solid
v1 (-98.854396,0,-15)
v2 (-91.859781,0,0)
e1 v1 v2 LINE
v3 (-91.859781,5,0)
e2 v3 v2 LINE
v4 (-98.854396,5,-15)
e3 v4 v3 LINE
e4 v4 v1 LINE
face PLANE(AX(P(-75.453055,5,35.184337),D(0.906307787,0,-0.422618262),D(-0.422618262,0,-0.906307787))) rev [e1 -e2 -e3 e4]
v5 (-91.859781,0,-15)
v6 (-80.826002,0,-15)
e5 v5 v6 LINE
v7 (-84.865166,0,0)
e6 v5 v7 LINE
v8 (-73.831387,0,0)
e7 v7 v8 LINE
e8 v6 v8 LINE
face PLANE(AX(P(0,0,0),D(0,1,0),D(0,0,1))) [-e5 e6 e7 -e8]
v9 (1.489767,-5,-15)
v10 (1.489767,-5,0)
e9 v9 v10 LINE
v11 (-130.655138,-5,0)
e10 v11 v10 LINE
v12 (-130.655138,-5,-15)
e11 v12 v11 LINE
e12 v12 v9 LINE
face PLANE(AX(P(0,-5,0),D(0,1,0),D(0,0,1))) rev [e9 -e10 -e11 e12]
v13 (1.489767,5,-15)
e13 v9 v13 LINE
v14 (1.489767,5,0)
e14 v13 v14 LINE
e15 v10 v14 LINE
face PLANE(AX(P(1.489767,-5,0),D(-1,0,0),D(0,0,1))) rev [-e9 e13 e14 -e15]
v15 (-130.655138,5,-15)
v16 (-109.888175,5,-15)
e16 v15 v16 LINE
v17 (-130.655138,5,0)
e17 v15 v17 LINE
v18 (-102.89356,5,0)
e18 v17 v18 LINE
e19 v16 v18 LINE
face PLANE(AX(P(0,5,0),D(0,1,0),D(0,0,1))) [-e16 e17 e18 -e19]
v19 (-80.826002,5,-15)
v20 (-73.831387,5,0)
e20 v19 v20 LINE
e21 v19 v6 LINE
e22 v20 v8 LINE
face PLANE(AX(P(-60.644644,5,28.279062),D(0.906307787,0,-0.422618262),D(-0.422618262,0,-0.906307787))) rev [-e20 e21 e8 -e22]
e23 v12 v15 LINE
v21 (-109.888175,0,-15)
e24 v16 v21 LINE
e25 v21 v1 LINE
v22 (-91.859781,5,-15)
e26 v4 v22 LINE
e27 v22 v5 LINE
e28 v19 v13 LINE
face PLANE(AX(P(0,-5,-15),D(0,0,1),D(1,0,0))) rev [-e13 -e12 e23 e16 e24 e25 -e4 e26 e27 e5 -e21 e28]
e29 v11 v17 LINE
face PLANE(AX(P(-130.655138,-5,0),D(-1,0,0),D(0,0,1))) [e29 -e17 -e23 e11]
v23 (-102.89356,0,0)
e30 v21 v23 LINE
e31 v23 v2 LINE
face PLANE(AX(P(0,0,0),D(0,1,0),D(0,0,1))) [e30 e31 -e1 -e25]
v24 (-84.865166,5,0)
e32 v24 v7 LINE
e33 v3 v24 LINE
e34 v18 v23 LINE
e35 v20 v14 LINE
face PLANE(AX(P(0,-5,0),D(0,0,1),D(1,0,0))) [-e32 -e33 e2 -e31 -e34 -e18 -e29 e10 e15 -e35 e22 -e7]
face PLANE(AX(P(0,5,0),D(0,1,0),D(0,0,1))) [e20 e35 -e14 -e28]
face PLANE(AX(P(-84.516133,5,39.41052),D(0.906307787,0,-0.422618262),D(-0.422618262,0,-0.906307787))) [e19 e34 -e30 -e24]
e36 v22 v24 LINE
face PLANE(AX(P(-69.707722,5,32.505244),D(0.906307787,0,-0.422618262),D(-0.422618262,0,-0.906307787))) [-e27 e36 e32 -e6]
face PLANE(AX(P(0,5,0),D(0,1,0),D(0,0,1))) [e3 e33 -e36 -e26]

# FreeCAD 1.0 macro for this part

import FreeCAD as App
import Part
import Sketcher

V = App.Vector
Q = App.Units.Quantity

doc = App.newDocument("Part")
params = doc.addObject("Spreadsheet::Sheet", "Params")
for row, (alias, value) in enumerate([
    ("sketch1_height", "15 mm"),
    ("pad1_length", "5 mm"),
    ("sketch2_height", "15 mm"),
    ("pad2_length", "5 mm"),
], start=1):
    params.set(f"A{row}", alias)
    params.set(f"B{row}", "=" + value)
    params.setAlias(f"B{row}", alias)

body = doc.addObject("PartDesign::Body", "Body")

# Sketch on XZ plane
sketch1 = body.newObject("Sketcher::SketchObject", "Sketch")
sketch1.AttachmentSupport = (doc.getObject("XZ_Plane"), [""])
sketch1.MapMode = "FlatFace"
sketch1.addGeometry([
    Part.LineSegment(V(-131, -15, 0), V(-131, 0, 0)),
    Part.LineSegment(V(-131, 0, 0), V(1, 0, 0)),
    Part.LineSegment(V(1, 0, 0), V(1, -15, 0)),
    Part.LineSegment(V(1, -15, 0), V(-131, -15, 0)),
], False)
sketch1.addConstraint([
    Sketcher.Constraint("Coincident", 0, 2, 1, 1),
    Sketcher.Constraint("Coincident", 1, 2, 2, 1),
    Sketcher.Constraint("Coincident", 2, 2, 3, 1),
    Sketcher.Constraint("Coincident", 3, 2, 0, 1),
    Sketcher.Constraint("Vertical", 0),
    Sketcher.Constraint("Horizontal", 1),
    Sketcher.Constraint("Vertical", 2),
    Sketcher.Constraint("Horizontal", 3),
    Sketcher.Constraint("PointOnObject", 0, 2, -1),
    Sketcher.Constraint("DistanceY", 0, 1, 0, 2, Q("15 mm")),
    Sketcher.Constraint("DistanceX", 1, 1, 1, 2, Q("132.144905 mm")),
    Sketcher.Constraint("DistanceX", 0, 2, -1, 1, Q("130.655138 mm")),
])
sketch1.setExpression("Constraints[9]", "Params.sketch1_height")
pad1 = body.newObject("PartDesign::Pad", "Pad")
pad1.Profile = sketch1
pad1.setExpression("Length", "Params.pad1_length")

# Sketch on XZ plane
sketch2 = body.newObject("Sketcher::SketchObject", "Sketch001")
sketch2.AttachmentSupport = (doc.getObject("XZ_Plane"), [""])
sketch2.MapMode = "FlatFace"
sketch2.addGeometry([
    Part.LineSegment(V(-110, -15, 0), V(-131, -15, 0)),  # 0
    Part.LineSegment(V(-131, -15, 0), V(-131, 0, 0)),  # 1
    Part.LineSegment(V(-131, 0, 0), V(-103, 0, 0)),  # 2
    Part.LineSegment(V(-103, 0, 0), V(-110, -15, 0)),  # 3
    Part.LineSegment(V(-92, -15, 0), V(-99, -15, 0)),  # 4
    Part.LineSegment(V(-99, -15, 0), V(-92, 0, 0)),  # 5
    Part.LineSegment(V(-92, 0, 0), V(-85, 0, 0)),  # 6
    Part.LineSegment(V(-85, 0, 0), V(-92, -15, 0)),  # 7
    Part.LineSegment(V(1, -15, 0), V(-81, -15, 0)),  # 8
    Part.LineSegment(V(-81, -15, 0), V(-74, 0, 0)),  # 9
    Part.LineSegment(V(-74, 0, 0), V(1, 0, 0)),  # 10
    Part.LineSegment(V(1, 0, 0), V(1, -15, 0)),  # 11
], False)
sketch2.addConstraint([
    Sketcher.Constraint("Coincident", 0, 2, 1, 1),
    Sketcher.Constraint("Coincident", 1, 2, 2, 1),
    Sketcher.Constraint("Coincident", 2, 2, 3, 1),
    Sketcher.Constraint("Coincident", 3, 2, 0, 1),
    Sketcher.Constraint("Coincident", 4, 2, 5, 1),
    Sketcher.Constraint("Coincident", 5, 2, 6, 1),
    Sketcher.Constraint("Coincident", 6, 2, 7, 1),
    Sketcher.Constraint("Coincident", 7, 2, 4, 1),
    Sketcher.Constraint("Coincident", 8, 2, 9, 1),
    Sketcher.Constraint("Coincident", 9, 2, 10, 1),
    Sketcher.Constraint("Coincident", 10, 2, 11, 1),
    Sketcher.Constraint("Coincident", 11, 2, 8, 1),
    Sketcher.Constraint("Horizontal", 0),
    Sketcher.Constraint("Vertical", 1),
    Sketcher.Constraint("Horizontal", 2),
    Sketcher.Constraint("Horizontal", 4),
    Sketcher.Constraint("Horizontal", 6),
    Sketcher.Constraint("Horizontal", 8),
    Sketcher.Constraint("Horizontal", 10),
    Sketcher.Constraint("Vertical", 11),
    Sketcher.Constraint("PointOnObject", 1, 2, -1),
    Sketcher.Constraint("PointOnObject", 5, 2, -1),
    Sketcher.Constraint("PointOnObject", 9, 2, -1),
    Sketcher.Constraint("Parallel", 3, 5),
    Sketcher.Constraint("Parallel", 5, 7),
    Sketcher.Constraint("Parallel", 7, 9),
    Sketcher.Constraint("Horizontal", 3, 2, 4, 2),
    Sketcher.Constraint("Horizontal", 7, 2, 8, 2),
    Sketcher.Constraint("Vertical", 5, 2, 7, 2),
    Sketcher.Constraint("DistanceY", 1, 1, 1, 2, Q("15 mm")),
    Sketcher.Constraint("Angle", 3, Q("-115 deg")),
    Sketcher.Constraint("DistanceX", 8, 2, -1, 1, Q("80.826002 mm")),
    Sketcher.Constraint("DistanceX", 2, 1, 2, 2, Q("27.761578 mm")),
    Sketcher.Constraint("DistanceX", 8, 2, 8, 1, Q("82.315769 mm")),
    Sketcher.Constraint("DistanceX", 0, 2, -1, 1, Q("130.655138 mm")),
    Sketcher.Constraint("DistanceX", 5, 2, -1, 1, Q("91.859781 mm")),
])
sketch2.setExpression("Constraints[29]", "Params.sketch2_height")
pad2 = body.newObject("PartDesign::Pad", "Pad001")
pad2.Profile = sketch2
pad2.setExpression("Length", "Params.pad2_length")
pad2.Reversed = True

doc.recompute()
